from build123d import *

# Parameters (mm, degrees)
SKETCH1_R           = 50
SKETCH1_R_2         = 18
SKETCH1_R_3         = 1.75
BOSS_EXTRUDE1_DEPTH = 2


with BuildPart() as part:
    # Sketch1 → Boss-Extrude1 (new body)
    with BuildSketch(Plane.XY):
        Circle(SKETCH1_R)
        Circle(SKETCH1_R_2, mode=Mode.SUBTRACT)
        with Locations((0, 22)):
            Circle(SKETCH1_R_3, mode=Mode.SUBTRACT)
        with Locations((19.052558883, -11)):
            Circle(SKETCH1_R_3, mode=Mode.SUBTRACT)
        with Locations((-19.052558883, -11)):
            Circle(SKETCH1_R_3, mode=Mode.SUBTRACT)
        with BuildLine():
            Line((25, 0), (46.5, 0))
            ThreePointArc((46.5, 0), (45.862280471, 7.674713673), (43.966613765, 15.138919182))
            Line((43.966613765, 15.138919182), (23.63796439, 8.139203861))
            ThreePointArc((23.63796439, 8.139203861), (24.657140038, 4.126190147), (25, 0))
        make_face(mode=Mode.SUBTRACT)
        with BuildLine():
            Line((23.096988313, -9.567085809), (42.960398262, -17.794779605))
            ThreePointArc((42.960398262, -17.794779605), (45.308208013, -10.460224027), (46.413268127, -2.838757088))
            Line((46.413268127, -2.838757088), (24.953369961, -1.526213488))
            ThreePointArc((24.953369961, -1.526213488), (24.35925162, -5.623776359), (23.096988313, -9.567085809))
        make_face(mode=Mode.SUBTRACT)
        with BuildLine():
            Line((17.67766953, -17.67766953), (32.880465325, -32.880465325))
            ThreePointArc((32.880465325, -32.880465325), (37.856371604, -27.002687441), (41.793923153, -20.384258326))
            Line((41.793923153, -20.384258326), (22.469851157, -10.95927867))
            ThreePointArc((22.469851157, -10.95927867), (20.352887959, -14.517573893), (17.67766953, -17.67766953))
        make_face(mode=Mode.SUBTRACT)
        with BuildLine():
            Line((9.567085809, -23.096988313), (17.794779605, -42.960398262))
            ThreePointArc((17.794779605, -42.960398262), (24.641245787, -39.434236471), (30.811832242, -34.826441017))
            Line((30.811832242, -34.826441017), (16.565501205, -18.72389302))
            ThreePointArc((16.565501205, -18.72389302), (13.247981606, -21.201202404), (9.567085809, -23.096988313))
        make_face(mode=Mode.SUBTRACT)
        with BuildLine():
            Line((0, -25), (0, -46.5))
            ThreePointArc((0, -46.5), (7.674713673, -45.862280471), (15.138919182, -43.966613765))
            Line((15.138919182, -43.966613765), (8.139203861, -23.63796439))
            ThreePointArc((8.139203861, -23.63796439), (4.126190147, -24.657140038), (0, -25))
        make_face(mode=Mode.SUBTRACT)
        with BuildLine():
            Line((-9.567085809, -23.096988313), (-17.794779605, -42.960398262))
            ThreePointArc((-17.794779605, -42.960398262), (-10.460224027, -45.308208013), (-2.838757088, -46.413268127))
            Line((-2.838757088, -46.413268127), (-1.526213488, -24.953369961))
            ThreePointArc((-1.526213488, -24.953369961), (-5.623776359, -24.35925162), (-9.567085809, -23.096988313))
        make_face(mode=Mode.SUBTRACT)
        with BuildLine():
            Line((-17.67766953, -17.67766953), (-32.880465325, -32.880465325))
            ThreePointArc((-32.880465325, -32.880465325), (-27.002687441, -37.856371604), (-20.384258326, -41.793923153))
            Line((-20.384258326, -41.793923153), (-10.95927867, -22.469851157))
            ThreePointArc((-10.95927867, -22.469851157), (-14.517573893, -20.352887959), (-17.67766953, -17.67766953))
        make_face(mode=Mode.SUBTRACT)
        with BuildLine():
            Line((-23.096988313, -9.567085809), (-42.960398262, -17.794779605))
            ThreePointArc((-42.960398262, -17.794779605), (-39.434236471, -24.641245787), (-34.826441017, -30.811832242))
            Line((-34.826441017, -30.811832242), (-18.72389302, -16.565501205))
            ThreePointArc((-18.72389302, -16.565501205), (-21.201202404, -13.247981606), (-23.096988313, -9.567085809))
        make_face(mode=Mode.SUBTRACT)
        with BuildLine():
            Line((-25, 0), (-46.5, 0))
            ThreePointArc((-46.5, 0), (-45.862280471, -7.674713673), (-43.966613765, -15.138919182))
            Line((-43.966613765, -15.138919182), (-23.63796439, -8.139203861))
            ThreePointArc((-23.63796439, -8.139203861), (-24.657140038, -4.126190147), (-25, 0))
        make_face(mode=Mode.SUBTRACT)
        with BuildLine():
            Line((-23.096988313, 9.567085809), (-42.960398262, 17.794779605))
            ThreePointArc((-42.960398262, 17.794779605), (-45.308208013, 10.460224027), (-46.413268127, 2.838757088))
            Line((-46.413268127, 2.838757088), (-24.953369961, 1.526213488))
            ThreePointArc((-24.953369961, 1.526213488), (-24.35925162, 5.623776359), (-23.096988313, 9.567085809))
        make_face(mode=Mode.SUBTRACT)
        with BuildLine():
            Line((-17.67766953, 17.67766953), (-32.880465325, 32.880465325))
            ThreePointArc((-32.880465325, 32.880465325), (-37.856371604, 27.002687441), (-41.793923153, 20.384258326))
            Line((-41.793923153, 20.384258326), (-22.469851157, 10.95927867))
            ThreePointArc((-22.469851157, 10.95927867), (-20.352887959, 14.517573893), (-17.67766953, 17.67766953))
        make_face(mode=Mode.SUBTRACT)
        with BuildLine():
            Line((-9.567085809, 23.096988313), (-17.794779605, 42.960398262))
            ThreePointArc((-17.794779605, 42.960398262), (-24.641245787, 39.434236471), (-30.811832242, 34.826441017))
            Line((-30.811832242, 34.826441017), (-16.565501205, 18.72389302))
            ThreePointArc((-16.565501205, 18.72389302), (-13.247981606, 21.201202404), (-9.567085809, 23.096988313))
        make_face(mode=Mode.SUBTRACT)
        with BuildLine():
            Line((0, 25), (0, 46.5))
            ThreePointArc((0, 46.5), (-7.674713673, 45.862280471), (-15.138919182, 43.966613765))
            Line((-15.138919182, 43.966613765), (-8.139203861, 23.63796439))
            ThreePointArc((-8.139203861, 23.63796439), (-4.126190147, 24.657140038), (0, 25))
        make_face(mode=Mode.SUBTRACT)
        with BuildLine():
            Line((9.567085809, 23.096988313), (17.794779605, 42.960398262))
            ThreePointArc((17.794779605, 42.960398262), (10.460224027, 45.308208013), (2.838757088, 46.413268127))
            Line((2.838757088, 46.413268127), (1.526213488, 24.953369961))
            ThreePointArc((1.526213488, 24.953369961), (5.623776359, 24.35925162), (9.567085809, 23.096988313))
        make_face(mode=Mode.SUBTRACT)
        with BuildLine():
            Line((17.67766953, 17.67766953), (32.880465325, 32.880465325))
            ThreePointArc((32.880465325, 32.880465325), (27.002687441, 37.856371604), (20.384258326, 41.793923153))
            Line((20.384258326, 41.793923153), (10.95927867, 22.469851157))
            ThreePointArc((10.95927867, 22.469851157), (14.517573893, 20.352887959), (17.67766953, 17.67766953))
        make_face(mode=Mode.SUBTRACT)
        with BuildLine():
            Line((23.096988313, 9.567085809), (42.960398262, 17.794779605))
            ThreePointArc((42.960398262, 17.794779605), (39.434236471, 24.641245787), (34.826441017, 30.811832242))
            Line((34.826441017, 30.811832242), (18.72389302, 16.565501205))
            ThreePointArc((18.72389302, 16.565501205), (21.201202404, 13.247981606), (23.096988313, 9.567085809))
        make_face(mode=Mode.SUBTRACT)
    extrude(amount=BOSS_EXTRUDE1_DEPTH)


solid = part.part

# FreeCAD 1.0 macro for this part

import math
import FreeCAD as App
import Part
import Sketcher
from FreeCAD import Vector
Q = App.Units.Quantity

doc = App.newDocument("Part")
params = doc.addObject("Spreadsheet::Sheet", "Params")
for row, (alias, value) in enumerate([
    ("sketch1_diameter", "100 mm"),
    ("sketch1_diameter2", "36 mm"),
    ("sketch1_radius", "25 mm"),
    ("sketch1_diameter3", "3.5 mm"),
    ("sketch1_radius2", "46.5 mm"),
    ("pad1_length", "2 mm"),
], start=1):
    params.set(f"A{row}", alias)
    params.set(f"B{row}", "=" + value)
    params.setAlias(f"B{row}", alias)

body = doc.addObject("PartDesign::Body", "Body")

# Sketch on XY plane
sketch1 = body.newObject("Sketcher::SketchObject", "Sketch")
sketch1.AttachmentSupport = (doc.getObject("XY_Plane"), [""])
sketch1.MapMode = "FlatFace"
sketch1.addGeometry([
    Part.Circle(Vector(0, 0, 0), Vector(0, 0, 1), 50),  # 0
    Part.LineSegment(Vector(-32.9, -32.9, 0), Vector(-17.7, -17.7, 0)),  # 1
    Part.ArcOfCircle(Part.Circle(Vector(0, 0, 0), Vector(0, 0, 1), 25), math.radians(-135), math.radians(-116)),  # 2
    Part.LineSegment(Vector(-11, -22.5, 0), Vector(-20.4, -41.8, 0)),  # 3
    Part.ArcOfCircle(Part.Circle(Vector(0, 0, 0), Vector(0, 0, 1), 46.5), math.radians(-135), math.radians(-116)),  # 4
    Part.LineSegment(Vector(-17.8, -43, 0), Vector(-9.6, -23.1, 0)),  # 5
    Part.ArcOfCircle(Part.Circle(Vector(0, 0, 0), Vector(0, 0, 1), 25), math.radians(-112.5), math.radians(-93.5)),  # 6
    Part.LineSegment(Vector(-1.5, -25, 0), Vector(-2.8, -46.4, 0)),  # 7
    Part.ArcOfCircle(Part.Circle(Vector(0, 0, 0), Vector(0, 0, 1), 46.5), math.radians(-112.5), math.radians(-93.5)),  # 8
    Part.LineSegment(Vector(-43, -17.8, 0), Vector(-23.1, -9.6, 0)),  # 9
    Part.ArcOfCircle(Part.Circle(Vector(0, 0, 0), Vector(0, 0, 1), 25), math.radians(-157.5), math.radians(-138.5)),  # 10
    Part.LineSegment(Vector(-18.7, -16.6, 0), Vector(-34.8, -30.8, 0)),  # 11
    Part.ArcOfCircle(Part.Circle(Vector(0, 0, 0), Vector(0, 0, 1), 46.5), math.radians(-157.5), math.radians(-138.5)),  # 12
    Part.LineSegment(Vector(-46.5, 0, 0), Vector(-25, 0, 0)),  # 13
    Part.ArcOfCircle(Part.Circle(Vector(0, 0, 0), Vector(0, 0, 1), 25), math.radians(-180), math.radians(-161)),  # 14
    Part.LineSegment(Vector(-23.6, -8.1, 0), Vector(-44, -15.1, 0)),  # 15
    Part.ArcOfCircle(Part.Circle(Vector(0, 0, 0), Vector(0, 0, 1), 46.5), math.radians(-180), math.radians(-161)),  # 16
    Part.Circle(Vector(-19.1, -11, 0), Vector(0, 0, 1), 1.8),  # 17
    Part.LineSegment(Vector(0, -46.5, 0), Vector(0, -25, 0)),  # 18
    Part.ArcOfCircle(Part.Circle(Vector(0, 0, 0), Vector(0, 0, 1), 25), math.radians(-90), math.radians(-71)),  # 19
    Part.LineSegment(Vector(8.1, -23.6, 0), Vector(15.1, -44, 0)),  # 20
    Part.ArcOfCircle(Part.Circle(Vector(0, 0, 0), Vector(0, 0, 1), 46.5), math.radians(-90), math.radians(-71)),  # 21
    Part.LineSegment(Vector(17.8, -43, 0), Vector(9.6, -23.1, 0)),  # 22
    Part.ArcOfCircle(Part.Circle(Vector(0, 0, 0), Vector(0, 0, 1), 25), math.radians(-67.5), math.radians(-48.5)),  # 23
    Part.LineSegment(Vector(16.6, -18.7, 0), Vector(30.8, -34.8, 0)),  # 24
    Part.ArcOfCircle(Part.Circle(Vector(0, 0, 0), Vector(0, 0, 1), 46.5), math.radians(-67.5), math.radians(-48.5)),  # 25
    Part.Circle(Vector(19.1, -11, 0), Vector(0, 0, 1), 1.8),  # 26
    Part.LineSegment(Vector(32.9, -32.9, 0), Vector(17.7, -17.7, 0)),  # 27
    Part.ArcOfCircle(Part.Circle(Vector(0, 0, 0), Vector(0, 0, 1), 25), math.radians(-45), math.radians(-26)),  # 28
    Part.LineSegment(Vector(22.5, -11, 0), Vector(41.8, -20.4, 0)),  # 29
    Part.ArcOfCircle(Part.Circle(Vector(0, 0, 0), Vector(0, 0, 1), 46.5), math.radians(-45), math.radians(-26)),  # 30
    Part.LineSegment(Vector(43, -17.8, 0), Vector(23.1, -9.6, 0)),  # 31
    Part.ArcOfCircle(Part.Circle(Vector(0, 0, 0), Vector(0, 0, 1), 25), math.radians(-22.5), math.radians(-3.5)),  # 32
    Part.LineSegment(Vector(25, -1.5, 0), Vector(46.4, -2.8, 0)),  # 33
    Part.ArcOfCircle(Part.Circle(Vector(0, 0, 0), Vector(0, 0, 1), 46.5), math.radians(-22.5), math.radians(-3.5)),  # 34
    Part.LineSegment(Vector(-43, 17.8, 0), Vector(-23.1, 9.6, 0)),  # 35
    Part.ArcOfCircle(Part.Circle(Vector(0, 0, 0), Vector(0, 0, 1), 25), math.radians(157.5), math.radians(176.5)),  # 36
    Part.LineSegment(Vector(-25, 1.5, 0), Vector(-46.4, 2.8, 0)),  # 37
    Part.ArcOfCircle(Part.Circle(Vector(0, 0, 0), Vector(0, 0, 1), 46.5), math.radians(157.5), math.radians(176.5)),  # 38
    Part.LineSegment(Vector(-32.9, 32.9, 0), Vector(-17.7, 17.7, 0)),  # 39
    Part.ArcOfCircle(Part.Circle(Vector(0, 0, 0), Vector(0, 0, 1), 25), math.radians(135), math.radians(154)),  # 40
    Part.LineSegment(Vector(-22.5, 11, 0), Vector(-41.8, 20.4, 0)),  # 41
    Part.ArcOfCircle(Part.Circle(Vector(0, 0, 0), Vector(0, 0, 1), 46.5), math.radians(135), math.radians(154)),  # 42
    Part.LineSegment(Vector(-17.8, 43, 0), Vector(-9.6, 23.1, 0)),  # 43
    Part.ArcOfCircle(Part.Circle(Vector(0, 0, 0), Vector(0, 0, 1), 25), math.radians(112.5), math.radians(131.5)),  # 44
    Part.LineSegment(Vector(-16.6, 18.7, 0), Vector(-30.8, 34.8, 0)),  # 45
    Part.ArcOfCircle(Part.Circle(Vector(0, 0, 0), Vector(0, 0, 1), 46.5), math.radians(112.5), math.radians(131.5)),  # 46
    Part.LineSegment(Vector(0, 46.5, 0), Vector(0, 25, 0)),  # 47
    Part.ArcOfCircle(Part.Circle(Vector(0, 0, 0), Vector(0, 0, 1), 25), math.radians(90), math.radians(109)),  # 48
    Part.LineSegment(Vector(-8.1, 23.6, 0), Vector(-15.1, 44, 0)),  # 49
    Part.ArcOfCircle(Part.Circle(Vector(0, 0, 0), Vector(0, 0, 1), 46.5), math.radians(90), math.radians(109)),  # 50
    Part.Circle(Vector(0, 0, 0), Vector(0, 0, 1), 18),  # 51
    Part.Circle(Vector(0, 22, 0), Vector(0, 0, 1), 1.8),  # 52
    Part.LineSegment(Vector(46.5, 0, 0), Vector(25, 0, 0)),  # 53
    Part.ArcOfCircle(Part.Circle(Vector(0, 0, 0), Vector(0, 0, 1), 25), math.radians(0), math.radians(19)),  # 54
    Part.LineSegment(Vector(23.6, 8.1, 0), Vector(44, 15.1, 0)),  # 55
    Part.ArcOfCircle(Part.Circle(Vector(0, 0, 0), Vector(0, 0, 1), 46.5), math.radians(0), math.radians(19)),  # 56
    Part.LineSegment(Vector(43, 17.8, 0), Vector(23.1, 9.6, 0)),  # 57
    Part.ArcOfCircle(Part.Circle(Vector(0, 0, 0), Vector(0, 0, 1), 25), math.radians(22.5), math.radians(41.5)),  # 58
    Part.LineSegment(Vector(18.7, 16.6, 0), Vector(34.8, 30.8, 0)),  # 59
    Part.ArcOfCircle(Part.Circle(Vector(0, 0, 0), Vector(0, 0, 1), 46.5), math.radians(22.5), math.radians(41.5)),  # 60
    Part.LineSegment(Vector(17.8, 43, 0), Vector(9.6, 23.1, 0)),  # 61
    Part.ArcOfCircle(Part.Circle(Vector(0, 0, 0), Vector(0, 0, 1), 25), math.radians(67.5), math.radians(86.5)),  # 62
    Part.LineSegment(Vector(1.5, 25, 0), Vector(2.8, 46.4, 0)),  # 63
    Part.ArcOfCircle(Part.Circle(Vector(0, 0, 0), Vector(0, 0, 1), 46.5), math.radians(67.5), math.radians(86.5)),  # 64
    Part.LineSegment(Vector(32.9, 32.9, 0), Vector(17.7, 17.7, 0)),  # 65
    Part.ArcOfCircle(Part.Circle(Vector(0, 0, 0), Vector(0, 0, 1), 25), math.radians(45), math.radians(64)),  # 66
    Part.LineSegment(Vector(11, 22.5, 0), Vector(20.4, 41.8, 0)),  # 67
    Part.ArcOfCircle(Part.Circle(Vector(0, 0, 0), Vector(0, 0, 1), 46.5), math.radians(45), math.radians(64)),  # 68
], False)
sketch1.addConstraint([
    Sketcher.Constraint("Coincident", 1, 2, 2, 1),
    Sketcher.Constraint("Coincident", 2, 2, 3, 1),
    Sketcher.Constraint("Coincident", 3, 2, 4, 2),
    Sketcher.Constraint("Coincident", 4, 1, 1, 1),
    Sketcher.Constraint("Coincident", 5, 2, 6, 1),
    Sketcher.Constraint("Coincident", 6, 2, 7, 1),
    Sketcher.Constraint("Coincident", 7, 2, 8, 2),
    Sketcher.Constraint("Coincident", 8, 1, 5, 1),
    Sketcher.Constraint("Coincident", 9, 2, 10, 1),
    Sketcher.Constraint("Coincident", 10, 2, 11, 1),
    Sketcher.Constraint("Coincident", 11, 2, 12, 2),
    Sketcher.Constraint("Coincident", 12, 1, 9, 1),
    Sketcher.Constraint("Coincident", 13, 2, 14, 1),
    Sketcher.Constraint("Coincident", 14, 2, 15, 1),
    Sketcher.Constraint("Coincident", 15, 2, 16, 2),
    Sketcher.Constraint("Coincident", 16, 1, 13, 1),
    Sketcher.Constraint("Coincident", 18, 2, 19, 1),
    Sketcher.Constraint("Coincident", 19, 2, 20, 1),
    Sketcher.Constraint("Coincident", 20, 2, 21, 2),
    Sketcher.Constraint("Coincident", 21, 1, 18, 1),
    Sketcher.Constraint("Coincident", 22, 2, 23, 1),
    Sketcher.Constraint("Coincident", 23, 2, 24, 1),
    Sketcher.Constraint("Coincident", 24, 2, 25, 2),
    Sketcher.Constraint("Coincident", 25, 1, 22, 1),
    Sketcher.Constraint("Coincident", 27, 2, 28, 1),
    Sketcher.Constraint("Coincident", 28, 2, 29, 1),
    Sketcher.Constraint("Coincident", 29, 2, 30, 2),
    Sketcher.Constraint("Coincident", 30, 1, 27, 1),
    Sketcher.Constraint("Coincident", 31, 2, 32, 1),
    Sketcher.Constraint("Coincident", 32, 2, 33, 1),
    Sketcher.Constraint("Coincident", 33, 2, 34, 2),
    Sketcher.Constraint("Coincident", 34, 1, 31, 1),
    Sketcher.Constraint("Coincident", 35, 2, 36, 1),
    Sketcher.Constraint("Coincident", 36, 2, 37, 1),
    Sketcher.Constraint("Coincident", 37, 2, 38, 2),
    Sketcher.Constraint("Coincident", 38, 1, 35, 1),
    Sketcher.Constraint("Coincident", 39, 2, 40, 1),
    Sketcher.Constraint("Coincident", 40, 2, 41, 1),
    Sketcher.Constraint("Coincident", 41, 2, 42, 2),
    Sketcher.Constraint("Coincident", 42, 1, 39, 1),
    Sketcher.Constraint("Coincident", 43, 2, 44, 1),
    Sketcher.Constraint("Coincident", 44, 2, 45, 1),
    Sketcher.Constraint("Coincident", 45, 2, 46, 2),
    Sketcher.Constraint("Coincident", 46, 1, 43, 1),
    Sketcher.Constraint("Coincident", 47, 2, 48, 1),
    Sketcher.Constraint("Coincident", 48, 2, 49, 1),
    Sketcher.Constraint("Coincident", 49, 2, 50, 2),
    Sketcher.Constraint("Coincident", 50, 1, 47, 1),
    Sketcher.Constraint("Coincident", 53, 2, 54, 1),
    Sketcher.Constraint("Coincident", 54, 2, 55, 1),
    Sketcher.Constraint("Coincident", 55, 2, 56, 2),
    Sketcher.Constraint("Coincident", 56, 1, 53, 1),
    Sketcher.Constraint("Coincident", 57, 2, 58, 1),
    Sketcher.Constraint("Coincident", 58, 2, 59, 1),
    Sketcher.Constraint("Coincident", 59, 2, 60, 2),
    Sketcher.Constraint("Coincident", 60, 1, 57, 1),
    Sketcher.Constraint("Coincident", 61, 2, 62, 1),
    Sketcher.Constraint("Coincident", 62, 2, 63, 1),
    Sketcher.Constraint("Coincident", 63, 2, 64, 2),
    Sketcher.Constraint("Coincident", 64, 1, 61, 1),
    Sketcher.Constraint("Coincident", 65, 2, 66, 1),
    Sketcher.Constraint("Coincident", 66, 2, 67, 1),
    Sketcher.Constraint("Coincident", 67, 2, 68, 2),
    Sketcher.Constraint("Coincident", 68, 1, 65, 1),
    Sketcher.Constraint("Horizontal", 13),
    Sketcher.Constraint("Vertical", 18),
    Sketcher.Constraint("Vertical", 47),
    Sketcher.Constraint("Horizontal", 53),
    Sketcher.Constraint("Coincident", 0, 3, -1, 1),
    Sketcher.Constraint("Coincident", 2, 3, -1, 1),
    Sketcher.Constraint("Coincident", 4, 3, -1, 1),
    Sketcher.Constraint("Coincident", 6, 3, -1, 1),
    Sketcher.Constraint("Coincident", 8, 3, -1, 1),
    Sketcher.Constraint("Coincident", 10, 3, -1, 1),
    Sketcher.Constraint("Coincident", 12, 3, -1, 1),
    Sketcher.Constraint("Coincident", 14, 3, -1, 1),
    Sketcher.Constraint("Coincident", 16, 3, -1, 1),
    Sketcher.Constraint("Coincident", 19, 3, -1, 1),
    Sketcher.Constraint("Coincident", 21, 3, -1, 1),
    Sketcher.Constraint("Coincident", 23, 3, -1, 1),
    Sketcher.Constraint("Coincident", 25, 3, -1, 1),
    Sketcher.Constraint("Coincident", 28, 3, -1, 1),
    Sketcher.Constraint("Coincident", 30, 3, -1, 1),
    Sketcher.Constraint("Coincident", 32, 3, -1, 1),
    Sketcher.Constraint("Coincident", 34, 3, -1, 1),
    Sketcher.Constraint("Coincident", 36, 3, -1, 1),
    Sketcher.Constraint("Coincident", 38, 3, -1, 1),
    Sketcher.Constraint("Coincident", 40, 3, -1, 1),
    Sketcher.Constraint("Coincident", 42, 3, -1, 1),
    Sketcher.Constraint("Coincident", 44, 3, -1, 1),
    Sketcher.Constraint("Coincident", 46, 3, -1, 1),
    Sketcher.Constraint("Coincident", 48, 3, -1, 1),
    Sketcher.Constraint("Coincident", 50, 3, -1, 1),
    Sketcher.Constraint("Coincident", 51, 3, -1, 1),
    Sketcher.Constraint("Coincident", 54, 3, -1, 1),
    Sketcher.Constraint("Coincident", 56, 3, -1, 1),
    Sketcher.Constraint("Coincident", 58, 3, -1, 1),
    Sketcher.Constraint("Coincident", 60, 3, -1, 1),
    Sketcher.Constraint("Coincident", 62, 3, -1, 1),
    Sketcher.Constraint("Coincident", 64, 3, -1, 1),
    Sketcher.Constraint("Coincident", 66, 3, -1, 1),
    Sketcher.Constraint("Coincident", 68, 3, -1, 1),
    Sketcher.Constraint("Equal", 2, 6),
    Sketcher.Constraint("Equal", 4, 8),
    Sketcher.Constraint("Equal", 6, 10),
    Sketcher.Constraint("Equal", 8, 12),
    Sketcher.Constraint("Equal", 10, 14),
    Sketcher.Constraint("Equal", 12, 16),
    Sketcher.Constraint("Equal", 14, 19),
    Sketcher.Constraint("Equal", 16, 21),
    Sketcher.Constraint("Equal", 19, 23),
    Sketcher.Constraint("Equal", 21, 25),
    Sketcher.Constraint("Equal", 17, 26),
    Sketcher.Constraint("Equal", 23, 28),
    Sketcher.Constraint("Equal", 25, 30),
    Sketcher.Constraint("Equal", 28, 32),
    Sketcher.Constraint("Equal", 30, 34),
    Sketcher.Constraint("Equal", 32, 36),
    Sketcher.Constraint("Equal", 34, 38),
    Sketcher.Constraint("Equal", 36, 40),
    Sketcher.Constraint("Equal", 38, 42),
    Sketcher.Constraint("Equal", 40, 44),
    Sketcher.Constraint("Equal", 42, 46),
    Sketcher.Constraint("Equal", 44, 48),
    Sketcher.Constraint("Equal", 46, 50),
    Sketcher.Constraint("Equal", 26, 52),
    Sketcher.Constraint("Equal", 48, 54),
    Sketcher.Constraint("Equal", 50, 56),
    Sketcher.Constraint("Equal", 54, 58),
    Sketcher.Constraint("Equal", 56, 60),
    Sketcher.Constraint("Equal", 58, 62),
    Sketcher.Constraint("Equal", 60, 64),
    Sketcher.Constraint("Equal", 62, 66),
    Sketcher.Constraint("Equal", 64, 68),
    Sketcher.Constraint("Symmetric", 17, 3, 26, 3, -2),
    Sketcher.Constraint("PointOnObject", 52, 3, -2),
    Sketcher.Constraint("PointOnObject", 13, 2, -1),
    Sketcher.Constraint("PointOnObject", 18, 2, -2),
    Sketcher.Constraint("PointOnObject", 47, 2, -2),
    Sketcher.Constraint("PointOnObject", 53, 2, -1),
    Sketcher.Constraint("Perpendicular", 15, 20),
    Sketcher.Constraint("Perpendicular", 9, 22),
    Sketcher.Constraint("Perpendicular", 11, 24),
    Sketcher.Constraint("Perpendicular", 1, 27),
    Sketcher.Constraint("Perpendicular", 3, 29),
    Sketcher.Constraint("Perpendicular", 5, 31),
    Sketcher.Constraint("Perpendicular", 7, 33),
    Sketcher.Constraint("Parallel", 31, 35),
    Sketcher.Constraint("Parallel", 33, 37),
    Sketcher.Constraint("Parallel", 27, 39),
    Sketcher.Constraint("Parallel", 29, 41),
    Sketcher.Constraint("Parallel", 22, 43),
    Sketcher.Constraint("Parallel", 24, 45),
    Sketcher.Constraint("Parallel", 20, 49),
    Sketcher.Constraint("Perpendicular", 49, 55),
    Sketcher.Constraint("Perpendicular", 43, 57),
    Sketcher.Constraint("Perpendicular", 45, 59),
    Sketcher.Constraint("Perpendicular", 35, 61),
    Sketcher.Constraint("Perpendicular", 37, 63),
    Sketcher.Constraint("Perpendicular", 39, 65),
    Sketcher.Constraint("Perpendicular", 41, 67),
    Sketcher.Constraint("Horizontal", 5, 2, 22, 2),
    Sketcher.Constraint("Horizontal", 8, 1, 25, 1),
    Sketcher.Constraint("Horizontal", 1, 2, 27, 2),
    Sketcher.Constraint("Horizontal", 4, 1, 30, 1),
    Sketcher.Constraint("Horizontal", 9, 2, 31, 2),
    Sketcher.Constraint("Horizontal", 35, 2, 57, 2),
    Sketcher.Constraint("Horizontal", 43, 2, 61, 2),
    Sketcher.Constraint("Horizontal", 39, 2, 65, 2),
    Sketcher.Constraint("Vertical", 9, 2, 35, 2),
    Sketcher.Constraint("Vertical", 1, 2, 39, 2),
    Sketcher.Constraint("Vertical", 5, 2, 43, 2),
    Sketcher.Constraint("Diameter", 0, 100.0),
    Sketcher.Constraint("Diameter", 51, 36.0),
    Sketcher.Constraint("Radius", 2, 25.0),
    Sketcher.Constraint("Diameter", 17, 3.5),
    Sketcher.Constraint("Radius", 4, 46.5),
    Sketcher.Constraint("Angle", 3, Q("-116 deg")),
    Sketcher.Constraint("Angle", 15, Q("-161 deg")),
    Sketcher.Constraint("DistanceY", 17, 3, -1, 1, 11.0),
    Sketcher.Constraint("DistanceY", -1, 1, 52, 3, 22.0),
    Sketcher.Constraint("Angle", 5, Q("67.5 deg")),
    Sketcher.Constraint("Angle", 7, Q("-93.5 deg")),
    Sketcher.Constraint("Angle", 11, Q("-138.5 deg")),
    Sketcher.Constraint("DistanceY", 8, 1, -1, 1, 42.960398),
    Sketcher.Constraint("DistanceY", 10, 2, -1, 1, 16.565501),
    Sketcher.Constraint("DistanceX", 12, 1, -1, 1, 42.960398),
    Sketcher.Constraint("DistanceX", -1, 1, 23, 2, 16.565501),
    Sketcher.Constraint("DistanceX", 44, 2, -1, 1, 16.565501),
    Sketcher.Constraint("DistanceY", -1, 1, 58, 2, 16.565501),
    Sketcher.Constraint("DistanceX", 17, 3, -1, 1, 19.052559),
    Sketcher.Constraint("DistanceX", 1, 2, -1, 1, 17.67767),
    Sketcher.Constraint("DistanceX", 2, 2, -1, 1, 10.959279),
    Sketcher.Constraint("DistanceY", 6, 2, -1, 1, 24.95337),
    Sketcher.Constraint("DistanceY", 15, 2, -1, 1, 15.138919),
    Sketcher.Constraint("DistanceX", -1, 1, 20, 2, 15.138919),
    Sketcher.Constraint("DistanceX", -1, 1, 28, 2, 22.469851),
    Sketcher.Constraint("DistanceX", -1, 1, 32, 2, 24.95337),
    Sketcher.Constraint("DistanceX", 36, 2, -1, 1, 24.95337),
    Sketcher.Constraint("DistanceX", 40, 2, -1, 1, 22.469851),
    Sketcher.Constraint("DistanceX", 49, 2, -1, 1, 15.138919),
    Sketcher.Constraint("DistanceY", -1, 1, 55, 2, 15.138919),
    Sketcher.Constraint("DistanceY", -1, 1, 62, 2, 24.95337),
    Sketcher.Constraint("DistanceX", -1, 1, 66, 2, 10.959279),
])
sketch1.setExpression("Constraints[172]", "Params.sketch1_diameter")
sketch1.setExpression("Constraints[173]", "Params.sketch1_diameter2")
sketch1.setExpression("Constraints[174]", "Params.sketch1_radius")
sketch1.setExpression("Constraints[175]", "Params.sketch1_diameter3")
sketch1.setExpression("Constraints[176]", "Params.sketch1_radius2")
pad1 = body.newObject("PartDesign::Pad", "Pad")
pad1.Profile = sketch1
pad1.setExpression("Length", "Params.pad1_length")

doc.recompute()
